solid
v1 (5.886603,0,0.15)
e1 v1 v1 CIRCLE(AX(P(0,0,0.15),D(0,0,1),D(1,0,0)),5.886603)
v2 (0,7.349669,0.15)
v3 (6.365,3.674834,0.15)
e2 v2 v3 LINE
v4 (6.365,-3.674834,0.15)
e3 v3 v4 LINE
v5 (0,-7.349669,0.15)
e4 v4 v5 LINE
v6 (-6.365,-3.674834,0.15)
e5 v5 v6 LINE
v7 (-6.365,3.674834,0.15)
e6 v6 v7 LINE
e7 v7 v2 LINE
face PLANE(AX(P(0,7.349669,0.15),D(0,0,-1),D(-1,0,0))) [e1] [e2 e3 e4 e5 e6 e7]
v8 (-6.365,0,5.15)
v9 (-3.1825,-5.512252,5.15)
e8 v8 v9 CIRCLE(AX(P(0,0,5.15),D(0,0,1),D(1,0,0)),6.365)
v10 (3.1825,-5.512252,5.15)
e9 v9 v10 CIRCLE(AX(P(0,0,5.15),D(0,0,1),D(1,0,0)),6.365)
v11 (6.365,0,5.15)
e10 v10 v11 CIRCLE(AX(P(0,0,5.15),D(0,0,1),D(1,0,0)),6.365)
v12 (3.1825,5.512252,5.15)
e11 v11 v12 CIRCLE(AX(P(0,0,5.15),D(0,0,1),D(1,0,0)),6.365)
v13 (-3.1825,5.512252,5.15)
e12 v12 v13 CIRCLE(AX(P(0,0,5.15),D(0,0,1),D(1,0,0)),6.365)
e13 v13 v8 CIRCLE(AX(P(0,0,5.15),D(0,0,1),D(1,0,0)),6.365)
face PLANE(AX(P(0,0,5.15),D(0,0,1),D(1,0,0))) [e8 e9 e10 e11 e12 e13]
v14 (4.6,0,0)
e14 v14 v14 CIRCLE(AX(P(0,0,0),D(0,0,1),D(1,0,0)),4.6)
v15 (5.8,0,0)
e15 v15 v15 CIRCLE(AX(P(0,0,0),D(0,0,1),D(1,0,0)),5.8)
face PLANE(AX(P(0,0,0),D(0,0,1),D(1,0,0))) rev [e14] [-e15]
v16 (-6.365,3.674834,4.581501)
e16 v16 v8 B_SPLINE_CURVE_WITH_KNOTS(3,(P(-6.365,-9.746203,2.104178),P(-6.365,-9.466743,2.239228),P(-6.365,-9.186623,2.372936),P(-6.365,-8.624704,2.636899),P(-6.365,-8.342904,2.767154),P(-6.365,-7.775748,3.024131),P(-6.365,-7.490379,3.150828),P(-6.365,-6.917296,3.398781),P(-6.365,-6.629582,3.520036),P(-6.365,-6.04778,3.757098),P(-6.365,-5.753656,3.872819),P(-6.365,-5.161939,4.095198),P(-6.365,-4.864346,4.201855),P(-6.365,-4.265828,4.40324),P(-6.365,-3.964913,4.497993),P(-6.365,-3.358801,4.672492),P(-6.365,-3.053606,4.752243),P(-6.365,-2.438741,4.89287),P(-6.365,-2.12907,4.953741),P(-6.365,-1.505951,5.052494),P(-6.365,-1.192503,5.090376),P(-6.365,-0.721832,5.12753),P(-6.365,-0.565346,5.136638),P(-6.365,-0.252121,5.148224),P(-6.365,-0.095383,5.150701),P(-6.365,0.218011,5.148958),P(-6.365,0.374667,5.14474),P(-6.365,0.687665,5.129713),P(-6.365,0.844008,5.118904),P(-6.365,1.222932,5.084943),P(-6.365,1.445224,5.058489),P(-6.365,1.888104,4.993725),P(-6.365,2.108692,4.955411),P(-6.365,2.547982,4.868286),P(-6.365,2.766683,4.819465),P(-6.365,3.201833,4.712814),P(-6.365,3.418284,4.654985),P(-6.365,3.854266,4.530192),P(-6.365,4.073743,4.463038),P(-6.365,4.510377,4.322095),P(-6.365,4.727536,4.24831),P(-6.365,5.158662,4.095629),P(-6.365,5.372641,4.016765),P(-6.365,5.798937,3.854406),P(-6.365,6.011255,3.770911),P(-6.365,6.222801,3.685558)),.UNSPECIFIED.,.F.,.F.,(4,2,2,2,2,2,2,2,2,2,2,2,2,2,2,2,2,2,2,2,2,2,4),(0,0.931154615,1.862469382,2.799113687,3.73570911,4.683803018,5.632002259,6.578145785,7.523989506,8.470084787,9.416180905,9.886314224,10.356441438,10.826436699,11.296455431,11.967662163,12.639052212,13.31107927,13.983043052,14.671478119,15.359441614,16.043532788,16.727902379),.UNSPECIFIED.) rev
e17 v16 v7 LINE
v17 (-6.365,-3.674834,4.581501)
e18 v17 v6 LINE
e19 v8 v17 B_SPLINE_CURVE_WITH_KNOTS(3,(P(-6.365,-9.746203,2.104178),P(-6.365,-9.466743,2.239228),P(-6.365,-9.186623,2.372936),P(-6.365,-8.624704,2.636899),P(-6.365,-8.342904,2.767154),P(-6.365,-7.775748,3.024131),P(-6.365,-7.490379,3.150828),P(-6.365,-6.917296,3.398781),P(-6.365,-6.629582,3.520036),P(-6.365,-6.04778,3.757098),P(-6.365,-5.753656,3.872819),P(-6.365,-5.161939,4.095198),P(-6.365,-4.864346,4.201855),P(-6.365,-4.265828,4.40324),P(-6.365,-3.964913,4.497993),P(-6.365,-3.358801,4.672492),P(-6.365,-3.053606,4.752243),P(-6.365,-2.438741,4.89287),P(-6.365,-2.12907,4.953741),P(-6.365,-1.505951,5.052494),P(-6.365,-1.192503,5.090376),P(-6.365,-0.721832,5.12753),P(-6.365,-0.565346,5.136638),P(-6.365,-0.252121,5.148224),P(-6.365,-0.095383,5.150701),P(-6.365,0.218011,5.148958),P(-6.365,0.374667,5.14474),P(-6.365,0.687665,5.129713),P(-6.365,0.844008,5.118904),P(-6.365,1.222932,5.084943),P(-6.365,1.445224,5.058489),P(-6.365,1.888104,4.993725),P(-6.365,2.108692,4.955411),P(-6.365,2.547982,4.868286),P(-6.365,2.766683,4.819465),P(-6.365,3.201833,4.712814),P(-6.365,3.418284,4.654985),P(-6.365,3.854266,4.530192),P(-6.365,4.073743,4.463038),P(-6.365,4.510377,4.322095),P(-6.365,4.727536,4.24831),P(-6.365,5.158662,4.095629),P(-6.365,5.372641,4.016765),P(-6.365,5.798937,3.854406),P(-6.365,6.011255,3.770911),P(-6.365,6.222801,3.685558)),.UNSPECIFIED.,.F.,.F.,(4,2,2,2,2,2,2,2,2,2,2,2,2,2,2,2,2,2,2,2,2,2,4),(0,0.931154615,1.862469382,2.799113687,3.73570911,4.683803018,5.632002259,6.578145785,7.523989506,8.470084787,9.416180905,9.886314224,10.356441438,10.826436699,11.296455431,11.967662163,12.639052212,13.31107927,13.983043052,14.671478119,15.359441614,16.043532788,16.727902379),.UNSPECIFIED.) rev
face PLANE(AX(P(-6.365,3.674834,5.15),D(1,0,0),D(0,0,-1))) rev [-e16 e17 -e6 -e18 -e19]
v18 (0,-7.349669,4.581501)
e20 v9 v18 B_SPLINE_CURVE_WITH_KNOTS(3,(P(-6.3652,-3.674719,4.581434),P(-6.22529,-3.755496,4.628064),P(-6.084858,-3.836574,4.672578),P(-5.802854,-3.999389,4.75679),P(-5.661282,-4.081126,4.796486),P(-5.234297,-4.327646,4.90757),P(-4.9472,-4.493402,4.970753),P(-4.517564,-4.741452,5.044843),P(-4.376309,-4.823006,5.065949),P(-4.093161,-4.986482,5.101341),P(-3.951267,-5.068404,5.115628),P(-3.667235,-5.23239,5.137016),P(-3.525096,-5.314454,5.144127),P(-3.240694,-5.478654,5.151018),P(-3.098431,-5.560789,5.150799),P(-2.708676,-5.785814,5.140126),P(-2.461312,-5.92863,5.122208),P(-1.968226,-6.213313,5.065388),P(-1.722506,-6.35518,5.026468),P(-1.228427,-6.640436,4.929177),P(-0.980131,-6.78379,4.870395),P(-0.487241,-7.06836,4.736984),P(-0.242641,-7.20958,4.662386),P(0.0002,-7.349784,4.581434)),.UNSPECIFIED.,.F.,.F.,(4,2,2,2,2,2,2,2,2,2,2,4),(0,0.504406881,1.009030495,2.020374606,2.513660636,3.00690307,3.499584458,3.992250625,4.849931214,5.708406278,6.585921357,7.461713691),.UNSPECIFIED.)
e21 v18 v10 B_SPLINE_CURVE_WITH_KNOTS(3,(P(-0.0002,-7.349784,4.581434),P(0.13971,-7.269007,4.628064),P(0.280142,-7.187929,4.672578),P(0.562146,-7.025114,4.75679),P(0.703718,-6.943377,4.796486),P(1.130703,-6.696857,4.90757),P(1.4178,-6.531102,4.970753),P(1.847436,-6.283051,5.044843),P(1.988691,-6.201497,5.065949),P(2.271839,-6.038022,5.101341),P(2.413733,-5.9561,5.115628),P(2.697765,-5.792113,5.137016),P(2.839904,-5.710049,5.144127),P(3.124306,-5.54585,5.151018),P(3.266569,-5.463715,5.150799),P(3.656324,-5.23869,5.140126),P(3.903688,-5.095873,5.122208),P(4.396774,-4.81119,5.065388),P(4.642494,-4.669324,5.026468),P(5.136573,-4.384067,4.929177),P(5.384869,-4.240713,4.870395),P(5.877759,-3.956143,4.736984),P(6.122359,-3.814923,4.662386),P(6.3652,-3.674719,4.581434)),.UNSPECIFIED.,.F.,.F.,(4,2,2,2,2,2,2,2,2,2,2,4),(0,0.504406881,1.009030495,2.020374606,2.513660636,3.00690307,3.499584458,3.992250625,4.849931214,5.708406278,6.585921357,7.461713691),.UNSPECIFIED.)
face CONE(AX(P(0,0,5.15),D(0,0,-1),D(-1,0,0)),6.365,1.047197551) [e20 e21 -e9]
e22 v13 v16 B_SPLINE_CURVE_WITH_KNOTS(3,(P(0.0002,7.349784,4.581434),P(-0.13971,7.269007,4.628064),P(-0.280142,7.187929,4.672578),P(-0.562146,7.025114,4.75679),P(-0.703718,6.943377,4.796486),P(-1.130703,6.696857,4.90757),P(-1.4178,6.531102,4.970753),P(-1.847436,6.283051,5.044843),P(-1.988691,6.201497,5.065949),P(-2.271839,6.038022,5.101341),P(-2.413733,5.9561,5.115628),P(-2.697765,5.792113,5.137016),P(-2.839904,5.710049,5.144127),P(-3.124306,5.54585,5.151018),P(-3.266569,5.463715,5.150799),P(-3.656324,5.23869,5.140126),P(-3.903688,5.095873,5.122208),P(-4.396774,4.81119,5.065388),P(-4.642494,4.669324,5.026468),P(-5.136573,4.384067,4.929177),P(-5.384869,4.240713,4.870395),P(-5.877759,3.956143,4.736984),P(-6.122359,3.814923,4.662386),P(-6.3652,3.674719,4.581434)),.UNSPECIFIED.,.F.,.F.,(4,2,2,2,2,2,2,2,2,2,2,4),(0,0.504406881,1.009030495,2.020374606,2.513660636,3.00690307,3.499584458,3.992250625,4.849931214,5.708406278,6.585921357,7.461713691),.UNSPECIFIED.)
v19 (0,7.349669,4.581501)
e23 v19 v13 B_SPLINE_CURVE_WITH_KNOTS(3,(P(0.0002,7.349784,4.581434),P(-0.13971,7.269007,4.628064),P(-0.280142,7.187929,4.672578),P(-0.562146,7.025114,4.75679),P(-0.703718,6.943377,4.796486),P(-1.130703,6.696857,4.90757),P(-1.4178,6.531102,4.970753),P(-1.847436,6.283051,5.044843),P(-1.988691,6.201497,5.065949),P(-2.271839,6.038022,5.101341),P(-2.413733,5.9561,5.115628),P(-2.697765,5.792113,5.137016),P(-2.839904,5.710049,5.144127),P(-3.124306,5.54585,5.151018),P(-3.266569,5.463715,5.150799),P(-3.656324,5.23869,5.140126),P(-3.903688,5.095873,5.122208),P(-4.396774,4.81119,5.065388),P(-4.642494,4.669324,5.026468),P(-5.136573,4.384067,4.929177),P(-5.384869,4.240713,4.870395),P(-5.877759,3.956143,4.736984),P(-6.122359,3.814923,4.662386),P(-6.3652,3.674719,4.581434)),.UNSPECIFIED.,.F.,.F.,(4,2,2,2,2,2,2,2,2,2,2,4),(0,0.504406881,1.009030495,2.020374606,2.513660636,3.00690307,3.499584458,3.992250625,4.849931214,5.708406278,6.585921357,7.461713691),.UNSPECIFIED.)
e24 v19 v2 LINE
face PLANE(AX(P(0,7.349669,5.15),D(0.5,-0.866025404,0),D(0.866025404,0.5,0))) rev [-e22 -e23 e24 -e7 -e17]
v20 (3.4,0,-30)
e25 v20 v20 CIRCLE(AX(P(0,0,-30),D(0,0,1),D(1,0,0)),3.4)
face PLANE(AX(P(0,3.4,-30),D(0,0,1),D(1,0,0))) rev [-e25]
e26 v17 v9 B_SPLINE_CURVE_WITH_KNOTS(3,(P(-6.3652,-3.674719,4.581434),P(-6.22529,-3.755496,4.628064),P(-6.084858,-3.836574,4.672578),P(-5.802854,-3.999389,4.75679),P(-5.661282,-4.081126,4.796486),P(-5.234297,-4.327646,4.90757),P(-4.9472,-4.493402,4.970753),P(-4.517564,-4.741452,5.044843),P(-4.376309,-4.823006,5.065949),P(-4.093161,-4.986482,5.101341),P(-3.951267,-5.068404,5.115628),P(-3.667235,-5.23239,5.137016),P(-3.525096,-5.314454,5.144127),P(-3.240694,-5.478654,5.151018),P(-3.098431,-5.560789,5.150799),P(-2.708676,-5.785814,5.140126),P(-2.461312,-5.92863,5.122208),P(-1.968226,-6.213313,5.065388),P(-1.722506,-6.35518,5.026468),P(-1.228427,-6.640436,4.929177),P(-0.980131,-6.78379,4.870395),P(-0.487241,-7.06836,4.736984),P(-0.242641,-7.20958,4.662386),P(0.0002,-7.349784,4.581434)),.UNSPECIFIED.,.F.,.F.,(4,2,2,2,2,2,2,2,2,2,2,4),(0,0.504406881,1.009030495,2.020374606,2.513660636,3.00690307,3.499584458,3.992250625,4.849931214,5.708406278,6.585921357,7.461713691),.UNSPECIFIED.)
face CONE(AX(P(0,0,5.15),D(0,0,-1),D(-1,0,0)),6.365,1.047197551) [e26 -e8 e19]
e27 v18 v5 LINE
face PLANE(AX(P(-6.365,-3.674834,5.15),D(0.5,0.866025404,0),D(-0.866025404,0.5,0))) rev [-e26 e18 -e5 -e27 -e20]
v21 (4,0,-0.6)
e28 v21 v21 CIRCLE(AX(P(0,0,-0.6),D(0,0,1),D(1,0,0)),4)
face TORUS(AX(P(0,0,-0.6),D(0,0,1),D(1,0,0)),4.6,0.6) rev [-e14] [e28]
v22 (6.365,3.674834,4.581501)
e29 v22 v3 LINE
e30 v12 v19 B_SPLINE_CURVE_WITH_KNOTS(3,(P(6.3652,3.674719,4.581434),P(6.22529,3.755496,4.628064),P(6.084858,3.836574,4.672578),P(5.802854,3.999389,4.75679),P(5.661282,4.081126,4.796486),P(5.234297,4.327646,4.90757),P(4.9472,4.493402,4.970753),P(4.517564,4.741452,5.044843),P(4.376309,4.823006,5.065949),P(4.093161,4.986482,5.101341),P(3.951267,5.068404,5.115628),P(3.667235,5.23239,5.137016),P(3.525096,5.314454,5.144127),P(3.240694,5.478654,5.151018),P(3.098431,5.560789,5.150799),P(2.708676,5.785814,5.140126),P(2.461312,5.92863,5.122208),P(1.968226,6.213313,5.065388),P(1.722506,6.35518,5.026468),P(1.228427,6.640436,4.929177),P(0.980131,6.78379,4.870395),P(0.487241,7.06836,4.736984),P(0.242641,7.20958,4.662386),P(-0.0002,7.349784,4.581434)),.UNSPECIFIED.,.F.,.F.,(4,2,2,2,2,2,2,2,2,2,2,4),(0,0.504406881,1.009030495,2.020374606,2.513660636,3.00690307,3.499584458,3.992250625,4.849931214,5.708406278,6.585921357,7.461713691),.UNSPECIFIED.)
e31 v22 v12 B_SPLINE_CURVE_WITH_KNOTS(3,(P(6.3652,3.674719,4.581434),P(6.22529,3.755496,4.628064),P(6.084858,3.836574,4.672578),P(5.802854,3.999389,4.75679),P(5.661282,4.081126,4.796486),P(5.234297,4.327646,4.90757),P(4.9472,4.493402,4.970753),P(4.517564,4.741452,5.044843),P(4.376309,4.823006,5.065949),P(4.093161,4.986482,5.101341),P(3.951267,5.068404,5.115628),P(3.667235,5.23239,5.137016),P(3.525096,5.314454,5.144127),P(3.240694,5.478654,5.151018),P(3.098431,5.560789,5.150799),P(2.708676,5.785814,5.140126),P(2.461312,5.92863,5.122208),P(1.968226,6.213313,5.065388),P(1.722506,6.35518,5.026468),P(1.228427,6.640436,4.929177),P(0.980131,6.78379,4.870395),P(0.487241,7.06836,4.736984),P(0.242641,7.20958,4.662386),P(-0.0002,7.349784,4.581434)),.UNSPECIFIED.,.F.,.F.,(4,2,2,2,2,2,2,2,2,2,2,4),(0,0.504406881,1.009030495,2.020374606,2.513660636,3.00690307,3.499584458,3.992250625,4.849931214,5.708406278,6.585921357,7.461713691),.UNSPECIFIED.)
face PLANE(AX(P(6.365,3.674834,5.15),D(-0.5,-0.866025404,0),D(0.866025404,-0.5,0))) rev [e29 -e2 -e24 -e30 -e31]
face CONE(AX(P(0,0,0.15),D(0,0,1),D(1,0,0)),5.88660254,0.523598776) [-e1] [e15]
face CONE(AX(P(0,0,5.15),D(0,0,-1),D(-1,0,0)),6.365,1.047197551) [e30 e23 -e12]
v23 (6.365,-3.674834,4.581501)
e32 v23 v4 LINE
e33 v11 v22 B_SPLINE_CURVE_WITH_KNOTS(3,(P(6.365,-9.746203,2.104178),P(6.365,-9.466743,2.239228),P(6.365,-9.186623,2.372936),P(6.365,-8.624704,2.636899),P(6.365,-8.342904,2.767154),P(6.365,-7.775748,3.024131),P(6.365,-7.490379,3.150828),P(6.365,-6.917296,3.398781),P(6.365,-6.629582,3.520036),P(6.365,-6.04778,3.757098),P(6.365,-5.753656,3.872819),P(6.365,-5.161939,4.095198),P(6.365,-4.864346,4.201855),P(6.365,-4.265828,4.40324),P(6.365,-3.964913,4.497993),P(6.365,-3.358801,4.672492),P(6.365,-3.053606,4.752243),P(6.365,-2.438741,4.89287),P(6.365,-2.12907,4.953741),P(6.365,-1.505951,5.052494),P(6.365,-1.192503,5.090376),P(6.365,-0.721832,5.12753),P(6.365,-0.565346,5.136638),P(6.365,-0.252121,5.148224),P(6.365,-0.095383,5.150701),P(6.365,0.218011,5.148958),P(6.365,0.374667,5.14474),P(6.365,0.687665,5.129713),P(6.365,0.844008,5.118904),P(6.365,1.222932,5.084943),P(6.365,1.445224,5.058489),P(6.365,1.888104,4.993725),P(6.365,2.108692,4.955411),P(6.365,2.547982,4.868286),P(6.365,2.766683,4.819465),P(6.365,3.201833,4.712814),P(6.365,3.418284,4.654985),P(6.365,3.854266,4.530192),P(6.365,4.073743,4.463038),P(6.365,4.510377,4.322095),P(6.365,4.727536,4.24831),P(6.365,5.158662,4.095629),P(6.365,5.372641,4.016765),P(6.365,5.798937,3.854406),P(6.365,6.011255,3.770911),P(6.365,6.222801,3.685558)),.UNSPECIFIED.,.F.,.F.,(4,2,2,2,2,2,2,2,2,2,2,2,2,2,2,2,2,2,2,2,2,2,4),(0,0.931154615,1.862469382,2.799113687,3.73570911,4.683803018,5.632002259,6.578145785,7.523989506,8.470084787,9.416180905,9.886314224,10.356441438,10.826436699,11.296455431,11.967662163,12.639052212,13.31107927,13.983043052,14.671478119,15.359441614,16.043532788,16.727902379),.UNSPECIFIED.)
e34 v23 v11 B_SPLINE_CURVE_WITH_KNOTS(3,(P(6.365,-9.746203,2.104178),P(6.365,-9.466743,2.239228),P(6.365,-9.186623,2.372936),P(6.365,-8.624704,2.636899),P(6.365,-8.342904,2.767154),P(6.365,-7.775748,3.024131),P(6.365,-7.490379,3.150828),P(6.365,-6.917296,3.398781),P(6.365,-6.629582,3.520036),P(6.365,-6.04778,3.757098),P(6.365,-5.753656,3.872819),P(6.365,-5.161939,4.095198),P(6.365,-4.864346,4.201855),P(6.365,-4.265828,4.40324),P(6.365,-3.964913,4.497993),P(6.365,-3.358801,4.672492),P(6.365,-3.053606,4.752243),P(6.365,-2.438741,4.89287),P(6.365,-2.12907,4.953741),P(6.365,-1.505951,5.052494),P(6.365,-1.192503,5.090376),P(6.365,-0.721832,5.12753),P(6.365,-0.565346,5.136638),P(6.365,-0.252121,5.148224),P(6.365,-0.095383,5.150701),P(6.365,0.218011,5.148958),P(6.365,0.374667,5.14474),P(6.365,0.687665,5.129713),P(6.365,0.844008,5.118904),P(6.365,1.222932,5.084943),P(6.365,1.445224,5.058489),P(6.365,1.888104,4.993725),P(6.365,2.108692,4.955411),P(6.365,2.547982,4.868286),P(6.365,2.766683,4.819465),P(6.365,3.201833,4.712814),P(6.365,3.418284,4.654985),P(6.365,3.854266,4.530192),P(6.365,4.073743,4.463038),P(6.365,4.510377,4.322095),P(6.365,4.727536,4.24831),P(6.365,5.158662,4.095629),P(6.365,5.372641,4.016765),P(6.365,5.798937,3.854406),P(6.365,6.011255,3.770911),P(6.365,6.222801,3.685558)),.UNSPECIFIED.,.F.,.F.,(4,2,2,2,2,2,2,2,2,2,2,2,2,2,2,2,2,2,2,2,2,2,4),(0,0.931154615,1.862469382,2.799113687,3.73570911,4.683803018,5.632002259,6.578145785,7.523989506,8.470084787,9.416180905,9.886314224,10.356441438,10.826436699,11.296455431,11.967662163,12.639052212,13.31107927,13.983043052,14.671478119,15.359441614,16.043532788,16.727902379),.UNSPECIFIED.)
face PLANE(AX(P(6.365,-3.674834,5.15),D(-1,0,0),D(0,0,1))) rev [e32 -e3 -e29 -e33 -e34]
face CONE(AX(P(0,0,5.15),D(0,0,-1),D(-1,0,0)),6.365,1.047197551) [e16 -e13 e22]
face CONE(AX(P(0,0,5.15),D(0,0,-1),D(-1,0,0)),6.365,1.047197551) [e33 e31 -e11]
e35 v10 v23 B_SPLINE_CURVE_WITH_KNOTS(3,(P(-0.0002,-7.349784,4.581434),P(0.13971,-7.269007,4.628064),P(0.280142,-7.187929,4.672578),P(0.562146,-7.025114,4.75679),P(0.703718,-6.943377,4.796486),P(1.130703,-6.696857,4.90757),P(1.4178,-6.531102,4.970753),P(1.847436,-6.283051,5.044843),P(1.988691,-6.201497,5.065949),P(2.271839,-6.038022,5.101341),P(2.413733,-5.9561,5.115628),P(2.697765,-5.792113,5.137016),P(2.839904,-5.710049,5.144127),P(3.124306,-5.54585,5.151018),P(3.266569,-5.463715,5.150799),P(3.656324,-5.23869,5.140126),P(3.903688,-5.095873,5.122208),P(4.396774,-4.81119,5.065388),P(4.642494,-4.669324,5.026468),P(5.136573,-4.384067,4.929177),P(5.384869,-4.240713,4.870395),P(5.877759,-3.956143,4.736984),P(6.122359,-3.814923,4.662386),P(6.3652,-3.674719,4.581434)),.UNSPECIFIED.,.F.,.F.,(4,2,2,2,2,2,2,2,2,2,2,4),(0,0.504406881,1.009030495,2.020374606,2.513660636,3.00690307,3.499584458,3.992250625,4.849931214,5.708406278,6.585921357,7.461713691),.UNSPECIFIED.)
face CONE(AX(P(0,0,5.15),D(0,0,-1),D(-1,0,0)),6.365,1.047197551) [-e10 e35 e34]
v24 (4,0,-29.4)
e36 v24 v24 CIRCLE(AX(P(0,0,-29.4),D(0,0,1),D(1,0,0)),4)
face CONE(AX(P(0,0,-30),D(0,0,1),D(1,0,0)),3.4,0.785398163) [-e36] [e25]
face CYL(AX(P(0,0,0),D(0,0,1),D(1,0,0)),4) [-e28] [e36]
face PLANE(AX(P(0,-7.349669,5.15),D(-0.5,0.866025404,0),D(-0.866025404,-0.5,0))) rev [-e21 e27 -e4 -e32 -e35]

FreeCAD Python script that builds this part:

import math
import FreeCAD as App
import Part
import Sketcher

V = App.Vector
Q = App.Units.Quantity

doc = App.newDocument("Part")
body = doc.addObject("PartDesign::Body", "Body")

sketch1 = doc.addObject("Sketcher::SketchObject", "Sketch")
body.addObject(sketch1)
sketch1.AttachmentSupport = (doc.XY_Plane, [""])
sketch1.MapMode = "FlatFace"
sketch1.addGeometry(Part.LineSegment(V(0, 7.349669, 0), V(-6.365, 3.674834, 0)), False)
sketch1.addGeometry(Part.LineSegment(V(-6.365, 3.674834, 0), V(-6.365, -3.674834, 0)), False)
sketch1.addGeometry(Part.LineSegment(V(-6.365, -3.674834, 0), V(0, -7.349669, 0)), False)
sketch1.addGeometry(Part.LineSegment(V(0, -7.349669, 0), V(6.365, -3.674834, 0)), False)
sketch1.addGeometry(Part.LineSegment(V(6.365, -3.674834, 0), V(6.365, 3.674834, 0)), False)
sketch1.addGeometry(Part.LineSegment(V(6.365, 3.674834, 0), V(0, 7.349669, 0)), False)
sketch1.addConstraint(Sketcher.Constraint("Coincident", 0, 2, 1, 1))
sketch1.addConstraint(Sketcher.Constraint("Coincident", 1, 2, 2, 1))
sketch1.addConstraint(Sketcher.Constraint("Coincident", 2, 2, 3, 1))
sketch1.addConstraint(Sketcher.Constraint("Coincident", 3, 2, 4, 1))
sketch1.addConstraint(Sketcher.Constraint("Coincident", 4, 2, 5, 1))
sketch1.addConstraint(Sketcher.Constraint("Coincident", 5, 2, 0, 1))
sketch1.addConstraint(Sketcher.Constraint("Vertical", 1))
sketch1.addConstraint(Sketcher.Constraint("Vertical", 4))
sketch1.addConstraint(Sketcher.Constraint("Symmetric", 0, 2, 3, 2, -1, 1))
sketch1.addConstraint(Sketcher.Constraint("Symmetric", 2, 2, 5, 2, -1, 1))
sketch1.addConstraint(Sketcher.Constraint("PointOnObject", 2, 2, -2))
sketch1.addConstraint(Sketcher.Constraint("Parallel", 2, 5))
sketch1.addConstraint(Sketcher.Constraint("Horizontal", 1, 2, 3, 2))
sketch1.addConstraint(Sketcher.Constraint("Angle", 0, Q("-150 deg")))
sketch1.addConstraint(Sketcher.Constraint("DistanceX", 1, 2, 3, 2, 12.73))
sketch1.addConstraint(Sketcher.Constraint("DistanceY", 1, 2, 1, 1, 7.349669))
pad1 = doc.addObject("PartDesign::Pad", "Pad")
body.addObject(pad1)
pad1.Profile = sketch1
pad1.Length = 5.15

sketch2 = doc.addObject("Sketcher::SketchObject", "Sketch001")
body.addObject(sketch2)
sketch2.AttachmentSupport = (doc.YZ_Plane, [""])
sketch2.MapMode = "FlatFace"
sketch2.addGeometry(Part.LineSegment(V(4.6, 0, 0), V(0, 0, 0)), False)
sketch2.addGeometry(Part.LineSegment(V(0, 0, 0), V(0, -30, 0)), False)
sketch2.addGeometry(Part.LineSegment(V(0, -30, 0), V(3.4, -30, 0)), False)
sketch2.addGeometry(Part.LineSegment(V(3.4, -30, 0), V(4, -29.4, 0)), False)
sketch2.addGeometry(Part.LineSegment(V(4, -29.4, 0), V(4, -0.6, 0)), False)
sketch2.addGeometry(Part.ArcOfCircle(Part.Circle(V(4.6, -0.6, 0), V(0, 0, 1), 0.6), math.radians(90), math.radians(180)), False)
sketch2.addConstraint(Sketcher.Constraint("Coincident", 0, 2, 1, 1))
sketch2.addConstraint(Sketcher.Constraint("Coincident", 1, 2, 2, 1))
sketch2.addConstraint(Sketcher.Constraint("Coincident", 2, 2, 3, 1))
sketch2.addConstraint(Sketcher.Constraint("Coincident", 3, 2, 4, 1))
sketch2.addConstraint(Sketcher.Constraint("Tangent", 4, 2, 5, 2))
sketch2.addConstraint(Sketcher.Constraint("Tangent", 5, 1, 0, 1))
sketch2.addConstraint(Sketcher.Constraint("Horizontal", 0))
sketch2.addConstraint(Sketcher.Constraint("Vertical", 1))
sketch2.addConstraint(Sketcher.Constraint("Horizontal", 2))
sketch2.addConstraint(Sketcher.Constraint("Vertical", 4))
sketch2.addConstraint(Sketcher.Constraint("Coincident", 0, 2, -1, 1))
sketch2.addConstraint(Sketcher.Constraint("Radius", 5, 0.6))
sketch2.addConstraint(Sketcher.Constraint("DistanceY", 1, 2, 1, 1, 30.0))
sketch2.addConstraint(Sketcher.Constraint("Angle", 3, Q("45 deg")))
sketch2.addConstraint(Sketcher.Constraint("DistanceX", 0, 2, 0, 1, 4.6))
sketch2.addConstraint(Sketcher.Constraint("DistanceX", 2, 1, 2, 2, 3.4))
revolution = doc.addObject("PartDesign::Revolution", "Revolution")
body.addObject(revolution)
revolution.Profile = sketch2
revolution.ReferenceAxis = (sketch2, ["V_Axis"])
revolution.Angle = 360

sketch3 = doc.addObject("Sketcher::SketchObject", "Sketch002")
body.addObject(sketch3)
sketch3.AttachmentSupport = (doc.YZ_Plane, [""])
sketch3.MapMode = "FlatFace"
sketch3.addGeometry(Part.LineSegment(V(7.349669, 4.581501, 0), V(7.349669, 5.15, 0)), False)
sketch3.addGeometry(Part.LineSegment(V(7.349669, 5.15, 0), V(6.365, 5.15, 0)), False)
sketch3.addGeometry(Part.LineSegment(V(6.365, 5.15, 0), V(7.349669, 4.581501, 0)), False)
sketch3.addGeometry(Part.LineSegment(V(7.349669, 0.15, 0), V(5.886603, 0.15, 0)), False)
sketch3.addGeometry(Part.LineSegment(V(5.886603, 0.15, 0), V(5.8, 0, 0)), False)
sketch3.addGeometry(Part.LineSegment(V(5.8, 0, 0), V(7.349669, 0, 0)), False)
sketch3.addGeometry(Part.LineSegment(V(7.349669, 0, 0), V(7.349669, 0.15, 0)), False)
sketch3.addConstraint(Sketcher.Constraint("Coincident", 0, 2, 1, 1))
sketch3.addConstraint(Sketcher.Constraint("Coincident", 1, 2, 2, 1))
sketch3.addConstraint(Sketcher.Constraint("Coincident", 2, 2, 0, 1))
sketch3.addConstraint(Sketcher.Constraint("Coincident", 3, 2, 4, 1))
sketch3.addConstraint(Sketcher.Constraint("Coincident", 4, 2, 5, 1))
sketch3.addConstraint(Sketcher.Constraint("Coincident", 5, 2, 6, 1))
sketch3.addConstraint(Sketcher.Constraint("Coincident", 6, 2, 3, 1))
sketch3.addConstraint(Sketcher.Constraint("Vertical", 0))
sketch3.addConstraint(Sketcher.Constraint("Horizontal", 1))
sketch3.addConstraint(Sketcher.Constraint("Horizontal", 3))
sketch3.addConstraint(Sketcher.Constraint("Horizontal", 5))
sketch3.addConstraint(Sketcher.Constraint("Vertical", 6))
sketch3.addConstraint(Sketcher.Constraint("PointOnObject", 4, 2, -1))
sketch3.addConstraint(Sketcher.Constraint("Perpendicular", 2, 4))
sketch3.addConstraint(Sketcher.Constraint("Vertical", 2, 2, 5, 2))
sketch3.addConstraint(Sketcher.Constraint("Angle", 2, Q("-30 deg")))
sketch3.addConstraint(Sketcher.Constraint("DistanceY", 3, 2, 1, 2, 5.0))
sketch3.addConstraint(Sketcher.Constraint("DistanceY", 6, 1, 6, 2, 0.15))
sketch3.addConstraint(Sketcher.Constraint("DistanceX", -1, 1, 4, 2, 5.8))
sketch3.addConstraint(Sketcher.Constraint("DistanceY", 0, 1, 0, 2, 0.568499))
sketch3.addConstraint(Sketcher.Constraint("DistanceX", -1, 1, 1, 2, 6.365))
groove = doc.addObject("PartDesign::Groove", "Groove")
body.addObject(groove)
groove.Profile = sketch3
groove.ReferenceAxis = (sketch3, ["V_Axis"])
groove.Angle = 360

doc.recompute()
